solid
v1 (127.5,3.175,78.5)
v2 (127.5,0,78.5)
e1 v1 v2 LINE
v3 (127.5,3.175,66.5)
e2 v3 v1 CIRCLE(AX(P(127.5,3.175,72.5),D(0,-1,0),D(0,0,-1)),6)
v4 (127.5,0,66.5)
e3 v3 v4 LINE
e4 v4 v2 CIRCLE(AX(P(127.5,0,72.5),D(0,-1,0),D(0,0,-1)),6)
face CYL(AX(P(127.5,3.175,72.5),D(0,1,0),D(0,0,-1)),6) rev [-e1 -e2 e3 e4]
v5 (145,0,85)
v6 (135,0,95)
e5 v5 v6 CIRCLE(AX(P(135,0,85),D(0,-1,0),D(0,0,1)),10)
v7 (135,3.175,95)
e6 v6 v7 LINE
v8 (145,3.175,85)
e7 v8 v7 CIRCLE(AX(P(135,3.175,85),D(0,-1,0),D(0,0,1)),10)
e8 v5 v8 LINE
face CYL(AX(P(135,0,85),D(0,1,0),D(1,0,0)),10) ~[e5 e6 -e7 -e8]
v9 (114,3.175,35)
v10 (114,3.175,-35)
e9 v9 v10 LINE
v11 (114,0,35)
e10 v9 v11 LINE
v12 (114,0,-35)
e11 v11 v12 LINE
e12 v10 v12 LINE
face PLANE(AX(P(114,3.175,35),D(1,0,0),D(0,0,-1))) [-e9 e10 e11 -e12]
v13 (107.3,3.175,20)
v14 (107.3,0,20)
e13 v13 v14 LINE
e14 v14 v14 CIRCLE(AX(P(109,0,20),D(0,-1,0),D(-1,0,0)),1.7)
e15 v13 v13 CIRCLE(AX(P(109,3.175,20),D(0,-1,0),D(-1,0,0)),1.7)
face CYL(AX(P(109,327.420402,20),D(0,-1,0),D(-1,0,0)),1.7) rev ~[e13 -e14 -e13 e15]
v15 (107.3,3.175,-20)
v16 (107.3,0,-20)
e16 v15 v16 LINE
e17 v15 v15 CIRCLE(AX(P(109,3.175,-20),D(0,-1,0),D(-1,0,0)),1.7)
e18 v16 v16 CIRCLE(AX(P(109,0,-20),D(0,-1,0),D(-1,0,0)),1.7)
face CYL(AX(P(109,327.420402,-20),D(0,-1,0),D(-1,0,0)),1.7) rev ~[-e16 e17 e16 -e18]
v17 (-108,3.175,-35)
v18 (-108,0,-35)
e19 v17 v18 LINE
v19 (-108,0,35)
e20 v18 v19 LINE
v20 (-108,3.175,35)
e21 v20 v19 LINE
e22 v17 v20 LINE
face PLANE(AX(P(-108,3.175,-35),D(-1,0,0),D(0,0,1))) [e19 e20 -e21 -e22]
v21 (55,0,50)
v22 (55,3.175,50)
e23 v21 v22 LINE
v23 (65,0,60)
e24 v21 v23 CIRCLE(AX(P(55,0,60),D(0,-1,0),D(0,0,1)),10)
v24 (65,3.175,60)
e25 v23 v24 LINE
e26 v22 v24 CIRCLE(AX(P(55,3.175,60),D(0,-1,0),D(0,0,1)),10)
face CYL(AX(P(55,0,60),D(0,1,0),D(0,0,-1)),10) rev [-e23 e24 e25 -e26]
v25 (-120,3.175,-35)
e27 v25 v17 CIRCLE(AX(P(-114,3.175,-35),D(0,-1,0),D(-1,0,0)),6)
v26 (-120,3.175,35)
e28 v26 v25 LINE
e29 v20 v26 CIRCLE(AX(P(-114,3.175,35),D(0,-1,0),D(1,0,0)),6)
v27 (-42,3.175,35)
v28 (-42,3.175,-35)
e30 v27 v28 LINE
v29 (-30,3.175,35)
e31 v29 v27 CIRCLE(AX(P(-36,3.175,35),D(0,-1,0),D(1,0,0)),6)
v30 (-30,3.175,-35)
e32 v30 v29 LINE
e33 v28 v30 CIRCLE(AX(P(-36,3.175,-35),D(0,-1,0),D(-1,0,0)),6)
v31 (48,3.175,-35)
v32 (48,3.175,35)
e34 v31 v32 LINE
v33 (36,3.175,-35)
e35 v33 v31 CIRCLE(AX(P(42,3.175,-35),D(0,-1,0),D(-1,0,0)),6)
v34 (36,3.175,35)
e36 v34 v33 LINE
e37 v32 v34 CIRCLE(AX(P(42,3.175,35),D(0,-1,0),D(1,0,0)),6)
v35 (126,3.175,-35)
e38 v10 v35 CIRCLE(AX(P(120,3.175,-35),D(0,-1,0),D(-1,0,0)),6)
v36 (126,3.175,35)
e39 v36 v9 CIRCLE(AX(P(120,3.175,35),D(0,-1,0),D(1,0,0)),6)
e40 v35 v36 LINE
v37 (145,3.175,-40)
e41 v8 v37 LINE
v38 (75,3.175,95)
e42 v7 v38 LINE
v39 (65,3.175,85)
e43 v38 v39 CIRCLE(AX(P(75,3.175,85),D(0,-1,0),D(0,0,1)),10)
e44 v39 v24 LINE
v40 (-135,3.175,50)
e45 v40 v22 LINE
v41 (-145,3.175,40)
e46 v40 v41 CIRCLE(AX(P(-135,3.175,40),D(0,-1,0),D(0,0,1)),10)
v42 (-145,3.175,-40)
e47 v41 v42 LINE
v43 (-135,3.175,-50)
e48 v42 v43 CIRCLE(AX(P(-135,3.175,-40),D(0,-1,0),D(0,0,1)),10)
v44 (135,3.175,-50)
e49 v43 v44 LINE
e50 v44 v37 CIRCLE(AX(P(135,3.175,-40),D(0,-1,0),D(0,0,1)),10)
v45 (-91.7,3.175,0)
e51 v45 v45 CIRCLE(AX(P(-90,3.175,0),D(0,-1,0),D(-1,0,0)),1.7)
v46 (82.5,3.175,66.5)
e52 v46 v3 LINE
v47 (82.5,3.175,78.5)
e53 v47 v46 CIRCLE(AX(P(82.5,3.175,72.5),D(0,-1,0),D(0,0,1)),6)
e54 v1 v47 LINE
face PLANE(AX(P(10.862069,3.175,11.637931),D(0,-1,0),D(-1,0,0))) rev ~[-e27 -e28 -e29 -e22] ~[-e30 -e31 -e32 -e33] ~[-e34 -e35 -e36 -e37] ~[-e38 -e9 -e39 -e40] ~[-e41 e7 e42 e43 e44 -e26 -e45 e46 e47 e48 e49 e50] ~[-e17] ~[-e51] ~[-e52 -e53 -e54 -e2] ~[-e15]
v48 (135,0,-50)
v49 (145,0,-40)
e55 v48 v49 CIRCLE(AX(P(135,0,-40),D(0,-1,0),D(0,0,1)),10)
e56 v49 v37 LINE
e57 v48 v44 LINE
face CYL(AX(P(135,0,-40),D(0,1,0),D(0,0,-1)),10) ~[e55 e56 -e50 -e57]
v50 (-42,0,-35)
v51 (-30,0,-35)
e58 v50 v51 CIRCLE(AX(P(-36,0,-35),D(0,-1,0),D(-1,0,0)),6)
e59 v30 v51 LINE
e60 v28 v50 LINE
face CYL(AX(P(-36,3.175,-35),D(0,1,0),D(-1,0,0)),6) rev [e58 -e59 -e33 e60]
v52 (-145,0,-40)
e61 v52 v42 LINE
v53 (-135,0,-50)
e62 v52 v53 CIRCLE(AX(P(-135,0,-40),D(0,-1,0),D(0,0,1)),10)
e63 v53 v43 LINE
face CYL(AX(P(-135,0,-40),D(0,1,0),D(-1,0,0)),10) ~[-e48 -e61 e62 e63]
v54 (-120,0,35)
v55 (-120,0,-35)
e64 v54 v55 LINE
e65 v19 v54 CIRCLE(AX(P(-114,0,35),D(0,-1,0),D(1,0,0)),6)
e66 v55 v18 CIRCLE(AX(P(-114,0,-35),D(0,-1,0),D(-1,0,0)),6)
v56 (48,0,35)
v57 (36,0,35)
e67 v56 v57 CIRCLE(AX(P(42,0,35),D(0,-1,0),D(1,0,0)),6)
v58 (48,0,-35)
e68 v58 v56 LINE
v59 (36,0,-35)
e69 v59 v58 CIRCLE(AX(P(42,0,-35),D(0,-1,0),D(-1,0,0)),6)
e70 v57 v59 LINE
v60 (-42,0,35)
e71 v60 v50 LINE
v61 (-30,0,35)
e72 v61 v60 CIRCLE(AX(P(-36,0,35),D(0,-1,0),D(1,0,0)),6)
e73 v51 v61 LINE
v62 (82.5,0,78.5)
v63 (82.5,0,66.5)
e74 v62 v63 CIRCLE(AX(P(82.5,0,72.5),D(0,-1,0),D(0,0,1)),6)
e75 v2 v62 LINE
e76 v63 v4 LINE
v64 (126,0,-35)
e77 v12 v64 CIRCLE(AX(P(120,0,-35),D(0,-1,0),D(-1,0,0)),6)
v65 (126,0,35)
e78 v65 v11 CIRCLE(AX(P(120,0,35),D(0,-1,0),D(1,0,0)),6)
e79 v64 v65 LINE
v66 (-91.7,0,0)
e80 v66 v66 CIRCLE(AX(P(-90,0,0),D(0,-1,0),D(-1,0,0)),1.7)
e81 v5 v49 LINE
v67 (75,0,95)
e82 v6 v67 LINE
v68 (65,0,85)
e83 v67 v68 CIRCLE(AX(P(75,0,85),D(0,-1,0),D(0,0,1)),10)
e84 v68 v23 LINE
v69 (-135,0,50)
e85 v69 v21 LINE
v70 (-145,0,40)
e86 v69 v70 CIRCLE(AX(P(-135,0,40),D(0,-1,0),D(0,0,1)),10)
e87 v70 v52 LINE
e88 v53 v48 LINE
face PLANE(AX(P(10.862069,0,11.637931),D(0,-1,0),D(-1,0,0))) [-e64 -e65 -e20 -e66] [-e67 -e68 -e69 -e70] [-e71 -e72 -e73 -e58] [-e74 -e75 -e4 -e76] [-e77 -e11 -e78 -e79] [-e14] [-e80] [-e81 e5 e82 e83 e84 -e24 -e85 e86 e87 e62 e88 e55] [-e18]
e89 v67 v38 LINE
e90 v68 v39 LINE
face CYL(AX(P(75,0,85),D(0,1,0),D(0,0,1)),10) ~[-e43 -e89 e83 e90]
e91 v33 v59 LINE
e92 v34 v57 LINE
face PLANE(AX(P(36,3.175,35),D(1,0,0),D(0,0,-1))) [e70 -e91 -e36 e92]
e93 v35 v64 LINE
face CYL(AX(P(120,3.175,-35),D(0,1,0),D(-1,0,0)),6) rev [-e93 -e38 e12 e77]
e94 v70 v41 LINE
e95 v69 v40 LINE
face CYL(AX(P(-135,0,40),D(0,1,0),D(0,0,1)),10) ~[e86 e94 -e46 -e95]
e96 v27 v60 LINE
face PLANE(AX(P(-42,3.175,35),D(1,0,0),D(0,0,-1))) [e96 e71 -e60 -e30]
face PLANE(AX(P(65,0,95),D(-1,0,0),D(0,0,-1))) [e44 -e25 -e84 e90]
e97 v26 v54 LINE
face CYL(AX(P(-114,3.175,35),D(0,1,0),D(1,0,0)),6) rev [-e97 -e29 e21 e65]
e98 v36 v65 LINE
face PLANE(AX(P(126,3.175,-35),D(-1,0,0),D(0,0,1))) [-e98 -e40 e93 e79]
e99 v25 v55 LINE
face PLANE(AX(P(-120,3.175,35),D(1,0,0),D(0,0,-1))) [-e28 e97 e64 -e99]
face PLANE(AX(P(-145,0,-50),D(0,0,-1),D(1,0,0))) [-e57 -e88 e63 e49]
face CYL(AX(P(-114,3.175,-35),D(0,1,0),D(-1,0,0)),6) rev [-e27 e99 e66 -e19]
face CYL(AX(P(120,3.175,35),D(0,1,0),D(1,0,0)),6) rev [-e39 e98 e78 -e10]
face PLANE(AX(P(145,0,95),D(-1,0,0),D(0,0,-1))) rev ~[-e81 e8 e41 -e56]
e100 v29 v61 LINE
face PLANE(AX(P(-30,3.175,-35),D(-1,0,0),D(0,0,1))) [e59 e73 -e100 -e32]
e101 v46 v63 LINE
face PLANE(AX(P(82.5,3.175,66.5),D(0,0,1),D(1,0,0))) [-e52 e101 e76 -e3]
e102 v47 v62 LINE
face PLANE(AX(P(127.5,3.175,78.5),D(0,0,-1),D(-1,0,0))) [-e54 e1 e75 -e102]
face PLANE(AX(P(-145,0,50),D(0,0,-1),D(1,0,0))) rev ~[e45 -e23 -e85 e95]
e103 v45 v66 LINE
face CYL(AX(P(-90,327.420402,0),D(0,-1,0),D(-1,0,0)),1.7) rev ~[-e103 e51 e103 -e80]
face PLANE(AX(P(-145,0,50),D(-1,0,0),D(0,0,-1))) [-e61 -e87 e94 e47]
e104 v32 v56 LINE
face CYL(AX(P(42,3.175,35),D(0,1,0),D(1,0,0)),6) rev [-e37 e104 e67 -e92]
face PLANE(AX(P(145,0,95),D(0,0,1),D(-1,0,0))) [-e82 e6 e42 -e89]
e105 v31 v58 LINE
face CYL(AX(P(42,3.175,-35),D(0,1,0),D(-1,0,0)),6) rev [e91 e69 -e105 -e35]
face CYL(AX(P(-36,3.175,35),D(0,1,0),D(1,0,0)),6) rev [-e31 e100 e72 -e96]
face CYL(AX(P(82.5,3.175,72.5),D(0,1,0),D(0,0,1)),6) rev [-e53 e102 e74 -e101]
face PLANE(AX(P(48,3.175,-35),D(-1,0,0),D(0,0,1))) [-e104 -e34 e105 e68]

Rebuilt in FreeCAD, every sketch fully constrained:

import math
import FreeCAD as App
import Part
import Sketcher

V = App.Vector


def edges_at(feature, points):
    """Names of the edges that pass closest to the given points."""
    edges = feature.Shape.Edges
    near = lambda p: min(range(len(edges)), key=lambda i: edges[i].distToShape(Part.Vertex(*p))[0])
    return sorted({f"Edge{near(p) + 1}" for p in points})


def add_polygon(sketch, points):
    """Adds a closed chain of lines whose ends are joined by coincident constraints."""
    first, n = sketch.GeometryCount, len(points)
    for a, b in zip(points, points[1:] + points[:1]):
        sketch.addGeometry(Part.LineSegment(App.Vector(*a, 0), App.Vector(*b, 0)), False)
    for i in range(n):
        sketch.addConstraint(Sketcher.Constraint("Coincident", first + i, 2, first + (i + 1) % n, 1))

doc = App.newDocument("Part")
body = doc.addObject("PartDesign::Body", "Body")

sketch1 = doc.addObject("Sketcher::SketchObject", "Sketch")
body.addObject(sketch1)
sketch1.AttachmentSupport = (doc.XZ_Plane, [""])
sketch1.MapMode = "FlatFace"
add_polygon(sketch1, [(-145, 50), (65, 50), (65, 95), (145, 95), (145, -50), (-145, -50)])
sketch1.addConstraint([
    Sketcher.Constraint("Horizontal", 0),
    Sketcher.Constraint("Vertical", 1),
    Sketcher.Constraint("Horizontal", 2),
    Sketcher.Constraint("Vertical", 3),
    Sketcher.Constraint("Horizontal", 4),
    Sketcher.Constraint("Vertical", 5),
    Sketcher.Constraint("Symmetric", 3, 2, 5, 2, -1, 1),
    Sketcher.Constraint("DistanceX", 0, 1, 0, 2, 210.0),
    Sketcher.Constraint("DistanceX", 2, 1, 2, 2, 80.0),
    Sketcher.Constraint("DistanceY", 1, 1, 1, 2, 45.0),
    Sketcher.Constraint("DistanceY", 3, 2, 3, 1, 145.0),
])
pad1 = doc.addObject("PartDesign::Pad", "Pad")
body.addObject(pad1)
pad1.Profile = sketch1
pad1.Length = 3.175
pad1.Reversed = True
doc.recompute()

fillet = doc.addObject("PartDesign::Fillet", "Fillet")
body.addObject(fillet)
fillet.Base = (pad1, edges_at(pad1, [
    (-145, 1.587, 50),
    (-145, 1.587, -50),
    (145, 1.587, -50),
    (145, 1.587, 95),
    (65, 1.587, 95),
    (65, 1.587, 50),
]))
fillet.Radius = 10

sketch2 = doc.addObject("Sketcher::SketchObject", "Sketch001")
body.addObject(sketch2)
sketch2.AttachmentSupport = (doc.XZ_Plane, [""])
sketch2.MapMode = "FlatFace"
sketch2.AttachmentOffset = App.Placement(V(0, 0, -3.175), App.Rotation())
sketch2.addGeometry([
    Part.Circle(V(-90, 0, 0), V(0, 0, 1), 1.7),
    Part.Circle(V(109, -20, 0), V(0, 0, 1), 1.7),
    Part.Circle(V(109, 20, 0), V(0, 0, 1), 1.7),
], False)
sketch2.addConstraint([
    Sketcher.Constraint("Equal", 0, 1),
    Sketcher.Constraint("Equal", 1, 2),
    Sketcher.Constraint("Symmetric", 1, 3, 2, 3, -1),
    Sketcher.Constraint("PointOnObject", 0, 3, -1),
    Sketcher.Constraint("Diameter", 0, 3.4),
    Sketcher.Constraint("DistanceX", 0, 3, -1, 1, 90.0),
    Sketcher.Constraint("DistanceX", -1, 1, 1, 3, 109.0),
    Sketcher.Constraint("DistanceY", 1, 3, -1, 1, 20.0),
])
doc.recompute()
hole = doc.addObject("PartDesign::Hole", "Hole")
body.addObject(hole)
hole.Profile = sketch2
hole.ThreadType = "None"
hole.Diameter = 3.4
hole.DepthType = "ThroughAll"
hole.Reversed = True

sketch3 = doc.addObject("Sketcher::SketchObject", "Sketch002")
body.addObject(sketch3)
sketch3.AttachmentSupport = (doc.XZ_Plane, [""])
sketch3.MapMode = "FlatFace"
sketch3.AttachmentOffset = App.Placement(V(0, 0, -3.175), App.Rotation())
sketch3.addGeometry([
    Part.LineSegment(V(-108, 35, 0), V(-108, -35, 0)),
    Part.ArcOfCircle(Part.Circle(V(-114, -35, 0), V(0, 0, 1), 6), math.radians(180), math.radians(360)),
    Part.LineSegment(V(-120, -35, 0), V(-120, 35, 0)),
    Part.ArcOfCircle(Part.Circle(V(-114, 35, 0), V(0, 0, 1), 6), math.radians(0), math.radians(180)),
    Part.LineSegment(V(-30, 35, 0), V(-30, -35, 0)),
    Part.ArcOfCircle(Part.Circle(V(-36, -35, 0), V(0, 0, 1), 6), math.radians(180), math.radians(360)),
    Part.LineSegment(V(-42, -35, 0), V(-42, 35, 0)),
    Part.ArcOfCircle(Part.Circle(V(-36, 35, 0), V(0, 0, 1), 6), math.radians(0), math.radians(180)),
    Part.LineSegment(V(48, 35, 0), V(48, -35, 0)),
    Part.ArcOfCircle(Part.Circle(V(42, -35, 0), V(0, 0, 1), 6), math.radians(180), math.radians(360)),
    Part.LineSegment(V(36, -35, 0), V(36, 35, 0)),
    Part.ArcOfCircle(Part.Circle(V(42, 35, 0), V(0, 0, 1), 6), math.radians(0), math.radians(180)),
    Part.LineSegment(V(126, 35, 0), V(126, -35, 0)),
    Part.ArcOfCircle(Part.Circle(V(120, -35, 0), V(0, 0, 1), 6), math.radians(180), math.radians(360)),
    Part.LineSegment(V(114, -35, 0), V(114, 35, 0)),
    Part.ArcOfCircle(Part.Circle(V(120, 35, 0), V(0, 0, 1), 6), math.radians(0), math.radians(180)),
    Part.LineSegment(V(127.5, 66.5, 0), V(82.5, 66.5, 0)),
    Part.ArcOfCircle(Part.Circle(V(82.5, 72.5, 0), V(0, 0, 1), 6), math.radians(90), math.radians(270)),
    Part.LineSegment(V(82.5, 78.5, 0), V(127.5, 78.5, 0)),
    Part.ArcOfCircle(Part.Circle(V(127.5, 72.5, 0), V(0, 0, 1), 6), math.radians(-90), math.radians(90)),
], False)
sketch3.addConstraint([
    Sketcher.Constraint("Tangent", 0, 2, 1, 2),
    Sketcher.Constraint("Tangent", 1, 1, 2, 1),
    Sketcher.Constraint("Tangent", 2, 2, 3, 2),
    Sketcher.Constraint("Tangent", 3, 1, 0, 1),
    Sketcher.Constraint("Tangent", 4, 2, 5, 2),
    Sketcher.Constraint("Tangent", 5, 1, 6, 1),
    Sketcher.Constraint("Tangent", 6, 2, 7, 2),
    Sketcher.Constraint("Tangent", 7, 1, 4, 1),
    Sketcher.Constraint("Tangent", 8, 2, 9, 2),
    Sketcher.Constraint("Tangent", 9, 1, 10, 1),
    Sketcher.Constraint("Tangent", 10, 2, 11, 2),
    Sketcher.Constraint("Tangent", 11, 1, 8, 1),
    Sketcher.Constraint("Tangent", 12, 2, 13, 2),
    Sketcher.Constraint("Tangent", 13, 1, 14, 1),
    Sketcher.Constraint("Tangent", 14, 2, 15, 2),
    Sketcher.Constraint("Tangent", 15, 1, 12, 1),
    Sketcher.Constraint("Tangent", 16, 2, 17, 2),
    Sketcher.Constraint("Tangent", 17, 1, 18, 1),
    Sketcher.Constraint("Tangent", 18, 2, 19, 2),
    Sketcher.Constraint("Tangent", 19, 1, 16, 1),
    Sketcher.Constraint("Vertical", 0),
    Sketcher.Constraint("Vertical", 2),
    Sketcher.Constraint("Vertical", 4),
    Sketcher.Constraint("Vertical", 6),
    Sketcher.Constraint("Vertical", 8),
    Sketcher.Constraint("Vertical", 10),
    Sketcher.Constraint("Vertical", 12),
    Sketcher.Constraint("Vertical", 14),
    Sketcher.Constraint("Horizontal", 16),
    Sketcher.Constraint("Horizontal", 18),
    Sketcher.Constraint("Equal", 3, 5),
    Sketcher.Constraint("Equal", 7, 9),
    Sketcher.Constraint("Equal", 11, 13),
    Sketcher.Constraint("Equal", 15, 17),
    Sketcher.Constraint("Horizontal", 1, 3, 5, 3),
    Sketcher.Constraint("Horizontal", 3, 3, 7, 3),
    Sketcher.Constraint("Horizontal", 5, 3, 9, 3),
    Sketcher.Constraint("Horizontal", 7, 3, 11, 3),
    Sketcher.Constraint("Horizontal", 9, 3, 13, 3),
    Sketcher.Constraint("Horizontal", 11, 3, 15, 3),
    Sketcher.Constraint("Radius", 1, 6.0),
    Sketcher.Constraint("DistanceX", 16, 2, 16, 1, 45.0),
    Sketcher.Constraint("DistanceY", 0, 2, 0, 1, 70.0),
    Sketcher.Constraint("DistanceX", 1, 3, -1, 1, 114.0),
    Sketcher.Constraint("DistanceY", 1, 3, -1, 1, 35.0),
    Sketcher.Constraint("DistanceX", 5, 3, -1, 1, 36.0),
    Sketcher.Constraint("DistanceX", -1, 1, 9, 3, 42.0),
    Sketcher.Constraint("DistanceX", -1, 1, 13, 3, 120.0),
    Sketcher.Constraint("DistanceX", -1, 1, 17, 3, 82.5),
    Sketcher.Constraint("DistanceY", -1, 1, 17, 3, 72.5),
])
pocket1 = doc.addObject("PartDesign::Pocket", "Pocket")
body.addObject(pocket1)
pocket1.Profile = sketch3
pocket1.Length = 3.175
pocket1.Reversed = True

doc.recompute()
